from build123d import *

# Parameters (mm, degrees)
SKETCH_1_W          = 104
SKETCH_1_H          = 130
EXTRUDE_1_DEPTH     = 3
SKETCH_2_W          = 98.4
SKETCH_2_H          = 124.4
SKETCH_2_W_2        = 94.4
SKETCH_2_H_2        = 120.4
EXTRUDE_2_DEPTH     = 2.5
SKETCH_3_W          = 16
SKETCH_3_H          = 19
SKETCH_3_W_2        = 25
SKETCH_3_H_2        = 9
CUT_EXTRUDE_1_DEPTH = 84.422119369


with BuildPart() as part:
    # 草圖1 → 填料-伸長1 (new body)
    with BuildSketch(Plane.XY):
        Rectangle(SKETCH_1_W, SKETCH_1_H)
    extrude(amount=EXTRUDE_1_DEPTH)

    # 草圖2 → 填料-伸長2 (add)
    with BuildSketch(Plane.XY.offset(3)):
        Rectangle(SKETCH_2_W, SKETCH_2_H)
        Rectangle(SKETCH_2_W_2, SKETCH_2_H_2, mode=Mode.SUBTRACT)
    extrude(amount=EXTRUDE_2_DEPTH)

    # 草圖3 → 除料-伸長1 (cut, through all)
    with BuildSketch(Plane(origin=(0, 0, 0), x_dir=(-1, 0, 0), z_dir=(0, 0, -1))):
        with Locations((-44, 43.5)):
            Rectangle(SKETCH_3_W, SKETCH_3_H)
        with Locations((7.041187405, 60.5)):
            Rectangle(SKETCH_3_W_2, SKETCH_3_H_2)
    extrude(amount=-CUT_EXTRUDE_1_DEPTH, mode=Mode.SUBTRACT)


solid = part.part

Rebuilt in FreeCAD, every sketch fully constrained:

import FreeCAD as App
import Part
import Sketcher

V = App.Vector
Q = App.Units.Quantity


def add_polygon(sketch, points):
    """Adds a closed chain of lines whose ends are joined by coincident constraints."""
    first, n = sketch.GeometryCount, len(points)
    for a, b in zip(points, points[1:] + points[:1]):
        sketch.addGeometry(Part.LineSegment(App.Vector(*a, 0), App.Vector(*b, 0)), False)
    for i in range(n):
        sketch.addConstraint(Sketcher.Constraint("Coincident", first + i, 2, first + (i + 1) % n, 1))

doc = App.newDocument("Part")
params = doc.addObject("Spreadsheet::Sheet", "Params")
for row, (alias, value) in enumerate([
    ("sketch1_width", "104 mm"),
    ("sketch1_height", "130 mm"),
    ("pad1_length", "3 mm"),
    ("sketch2_width", "98.4 mm"),
    ("sketch2_width2", "94.4 mm"),
    ("sketch2_height", "124.4 mm"),
    ("sketch2_height2", "120.4 mm"),
    ("pad2_length", "2.5 mm"),
    ("sketch3_width", "16 mm"),
    ("sketch3_width2", "25 mm"),
    ("sketch3_height", "19 mm"),
    ("sketch3_height2", "9 mm"),
], start=1):
    params.set(f"A{row}", alias)
    params.set(f"B{row}", "=" + value)
    params.setAlias(f"B{row}", alias)

body = doc.addObject("PartDesign::Body", "Body")

sketch1 = body.newObject("Sketcher::SketchObject", "Sketch")
sketch1.AttachmentSupport = (doc.getObject("XY_Plane"), [""])
sketch1.MapMode = "FlatFace"
add_polygon(sketch1, [(-52, 65), (-52, -65), (52, -65), (52, 65)])
sketch1.addConstraint(Sketcher.Constraint("Vertical", 0))
sketch1.addConstraint(Sketcher.Constraint("Horizontal", 1))
sketch1.addConstraint(Sketcher.Constraint("Vertical", 2))
sketch1.addConstraint(Sketcher.Constraint("Horizontal", 3))
sketch1.addConstraint(Sketcher.Constraint("Symmetric", 0, 2, 2, 2, -1, 1))
sketch1.addConstraint(Sketcher.Constraint("DistanceX", 1, 1, 1, 2, Q("104 mm")))
sketch1.addConstraint(Sketcher.Constraint("DistanceY", 0, 2, 0, 1, Q("130 mm")))
sketch1.setExpression("Constraints[9]", "Params.sketch1_width")
sketch1.setExpression("Constraints[10]", "Params.sketch1_height")
pad1 = body.newObject("PartDesign::Pad", "Pad")
pad1.Profile = sketch1
pad1.setExpression("Length", "Params.pad1_length")

sketch2 = body.newObject("Sketcher::SketchObject", "Sketch001")
sketch2.AttachmentSupport = (doc.getObject("XY_Plane"), [""])
sketch2.MapMode = "FlatFace"
sketch2.AttachmentOffset = App.Placement(V(0, 0, 3), App.Rotation())
add_polygon(sketch2, [(-49, 62), (-49, -62), (49, -62), (49, 62)])
add_polygon(sketch2, [(47, -60), (-47, -60), (-47, 60), (47, 60)])
sketch2.addConstraint(Sketcher.Constraint("Vertical", 0))
sketch2.addConstraint(Sketcher.Constraint("Horizontal", 1))
sketch2.addConstraint(Sketcher.Constraint("Vertical", 2))
sketch2.addConstraint(Sketcher.Constraint("Horizontal", 3))
sketch2.addConstraint(Sketcher.Constraint("Horizontal", 4))
sketch2.addConstraint(Sketcher.Constraint("Vertical", 5))
sketch2.addConstraint(Sketcher.Constraint("Horizontal", 6))
sketch2.addConstraint(Sketcher.Constraint("Vertical", 7))
sketch2.addConstraint(Sketcher.Constraint("Symmetric", 0, 2, 2, 2, -1, 1))
sketch2.addConstraint(Sketcher.Constraint("Symmetric", 4, 2, 6, 2, -1, 1))
sketch2.addConstraint(Sketcher.Constraint("DistanceX", 1, 1, 1, 2, Q("98.4 mm")))
sketch2.addConstraint(Sketcher.Constraint("DistanceX", 4, 2, 4, 1, Q("94.4 mm")))
sketch2.addConstraint(Sketcher.Constraint("DistanceY", 0, 2, 0, 1, Q("124.4 mm")))
sketch2.addConstraint(Sketcher.Constraint("DistanceY", 5, 1, 5, 2, Q("120.4 mm")))
sketch2.setExpression("Constraints[18]", "Params.sketch2_width")
sketch2.setExpression("Constraints[19]", "Params.sketch2_width2")
sketch2.setExpression("Constraints[20]", "Params.sketch2_height")
sketch2.setExpression("Constraints[21]", "Params.sketch2_height2")
pad2 = body.newObject("PartDesign::Pad", "Pad001")
pad2.Profile = sketch2
pad2.setExpression("Length", "Params.pad2_length")

sketch3 = body.newObject("Sketcher::SketchObject", "Sketch002")
sketch3.AttachmentSupport = (doc.getObject("XY_Plane"), [""])
sketch3.MapMode = "FlatFace"
add_polygon(sketch3, [(52, 53), (52, 34), (36, 34), (36, 53)])
add_polygon(sketch3, [(5, 65), (5, 56), (-20, 56), (-20, 65)])
sketch3.addConstraint(Sketcher.Constraint("Vertical", 0))
sketch3.addConstraint(Sketcher.Constraint("Horizontal", 1))
sketch3.addConstraint(Sketcher.Constraint("Vertical", 2))
sketch3.addConstraint(Sketcher.Constraint("Horizontal", 3))
sketch3.addConstraint(Sketcher.Constraint("Vertical", 4))
sketch3.addConstraint(Sketcher.Constraint("Horizontal", 5))
sketch3.addConstraint(Sketcher.Constraint("Vertical", 6))
sketch3.addConstraint(Sketcher.Constraint("Horizontal", 7))
sketch3.addConstraint(Sketcher.Constraint("DistanceX", 1, 2, 1, 1, Q("16 mm")))
sketch3.addConstraint(Sketcher.Constraint("DistanceX", 5, 2, 5, 1, Q("25 mm")))
sketch3.addConstraint(Sketcher.Constraint("DistanceY", 0, 2, 0, 1, Q("19 mm")))
sketch3.addConstraint(Sketcher.Constraint("DistanceY", 4, 2, 4, 1, Q("9 mm")))
sketch3.addConstraint(Sketcher.Constraint("DistanceX", -1, 1, 0, 2, Q("52 mm")))
sketch3.addConstraint(Sketcher.Constraint("DistanceY", -1, 1, 0, 2, Q("34 mm")))
sketch3.addConstraint(Sketcher.Constraint("DistanceY", -1, 1, 4, 2, Q("56 mm")))
sketch3.addConstraint(Sketcher.Constraint("DistanceX", -1, 1, 4, 2, Q("5.458813 mm")))
sketch3.setExpression("Constraints[16]", "Params.sketch3_width")
sketch3.setExpression("Constraints[17]", "Params.sketch3_width2")
sketch3.setExpression("Constraints[18]", "Params.sketch3_height")
sketch3.setExpression("Constraints[19]", "Params.sketch3_height2")
pocket1 = body.newObject("PartDesign::Pocket", "Pocket")
pocket1.Profile = sketch3
pocket1.Type = "ThroughAll"
pocket1.Reversed = True

doc.recompute()
